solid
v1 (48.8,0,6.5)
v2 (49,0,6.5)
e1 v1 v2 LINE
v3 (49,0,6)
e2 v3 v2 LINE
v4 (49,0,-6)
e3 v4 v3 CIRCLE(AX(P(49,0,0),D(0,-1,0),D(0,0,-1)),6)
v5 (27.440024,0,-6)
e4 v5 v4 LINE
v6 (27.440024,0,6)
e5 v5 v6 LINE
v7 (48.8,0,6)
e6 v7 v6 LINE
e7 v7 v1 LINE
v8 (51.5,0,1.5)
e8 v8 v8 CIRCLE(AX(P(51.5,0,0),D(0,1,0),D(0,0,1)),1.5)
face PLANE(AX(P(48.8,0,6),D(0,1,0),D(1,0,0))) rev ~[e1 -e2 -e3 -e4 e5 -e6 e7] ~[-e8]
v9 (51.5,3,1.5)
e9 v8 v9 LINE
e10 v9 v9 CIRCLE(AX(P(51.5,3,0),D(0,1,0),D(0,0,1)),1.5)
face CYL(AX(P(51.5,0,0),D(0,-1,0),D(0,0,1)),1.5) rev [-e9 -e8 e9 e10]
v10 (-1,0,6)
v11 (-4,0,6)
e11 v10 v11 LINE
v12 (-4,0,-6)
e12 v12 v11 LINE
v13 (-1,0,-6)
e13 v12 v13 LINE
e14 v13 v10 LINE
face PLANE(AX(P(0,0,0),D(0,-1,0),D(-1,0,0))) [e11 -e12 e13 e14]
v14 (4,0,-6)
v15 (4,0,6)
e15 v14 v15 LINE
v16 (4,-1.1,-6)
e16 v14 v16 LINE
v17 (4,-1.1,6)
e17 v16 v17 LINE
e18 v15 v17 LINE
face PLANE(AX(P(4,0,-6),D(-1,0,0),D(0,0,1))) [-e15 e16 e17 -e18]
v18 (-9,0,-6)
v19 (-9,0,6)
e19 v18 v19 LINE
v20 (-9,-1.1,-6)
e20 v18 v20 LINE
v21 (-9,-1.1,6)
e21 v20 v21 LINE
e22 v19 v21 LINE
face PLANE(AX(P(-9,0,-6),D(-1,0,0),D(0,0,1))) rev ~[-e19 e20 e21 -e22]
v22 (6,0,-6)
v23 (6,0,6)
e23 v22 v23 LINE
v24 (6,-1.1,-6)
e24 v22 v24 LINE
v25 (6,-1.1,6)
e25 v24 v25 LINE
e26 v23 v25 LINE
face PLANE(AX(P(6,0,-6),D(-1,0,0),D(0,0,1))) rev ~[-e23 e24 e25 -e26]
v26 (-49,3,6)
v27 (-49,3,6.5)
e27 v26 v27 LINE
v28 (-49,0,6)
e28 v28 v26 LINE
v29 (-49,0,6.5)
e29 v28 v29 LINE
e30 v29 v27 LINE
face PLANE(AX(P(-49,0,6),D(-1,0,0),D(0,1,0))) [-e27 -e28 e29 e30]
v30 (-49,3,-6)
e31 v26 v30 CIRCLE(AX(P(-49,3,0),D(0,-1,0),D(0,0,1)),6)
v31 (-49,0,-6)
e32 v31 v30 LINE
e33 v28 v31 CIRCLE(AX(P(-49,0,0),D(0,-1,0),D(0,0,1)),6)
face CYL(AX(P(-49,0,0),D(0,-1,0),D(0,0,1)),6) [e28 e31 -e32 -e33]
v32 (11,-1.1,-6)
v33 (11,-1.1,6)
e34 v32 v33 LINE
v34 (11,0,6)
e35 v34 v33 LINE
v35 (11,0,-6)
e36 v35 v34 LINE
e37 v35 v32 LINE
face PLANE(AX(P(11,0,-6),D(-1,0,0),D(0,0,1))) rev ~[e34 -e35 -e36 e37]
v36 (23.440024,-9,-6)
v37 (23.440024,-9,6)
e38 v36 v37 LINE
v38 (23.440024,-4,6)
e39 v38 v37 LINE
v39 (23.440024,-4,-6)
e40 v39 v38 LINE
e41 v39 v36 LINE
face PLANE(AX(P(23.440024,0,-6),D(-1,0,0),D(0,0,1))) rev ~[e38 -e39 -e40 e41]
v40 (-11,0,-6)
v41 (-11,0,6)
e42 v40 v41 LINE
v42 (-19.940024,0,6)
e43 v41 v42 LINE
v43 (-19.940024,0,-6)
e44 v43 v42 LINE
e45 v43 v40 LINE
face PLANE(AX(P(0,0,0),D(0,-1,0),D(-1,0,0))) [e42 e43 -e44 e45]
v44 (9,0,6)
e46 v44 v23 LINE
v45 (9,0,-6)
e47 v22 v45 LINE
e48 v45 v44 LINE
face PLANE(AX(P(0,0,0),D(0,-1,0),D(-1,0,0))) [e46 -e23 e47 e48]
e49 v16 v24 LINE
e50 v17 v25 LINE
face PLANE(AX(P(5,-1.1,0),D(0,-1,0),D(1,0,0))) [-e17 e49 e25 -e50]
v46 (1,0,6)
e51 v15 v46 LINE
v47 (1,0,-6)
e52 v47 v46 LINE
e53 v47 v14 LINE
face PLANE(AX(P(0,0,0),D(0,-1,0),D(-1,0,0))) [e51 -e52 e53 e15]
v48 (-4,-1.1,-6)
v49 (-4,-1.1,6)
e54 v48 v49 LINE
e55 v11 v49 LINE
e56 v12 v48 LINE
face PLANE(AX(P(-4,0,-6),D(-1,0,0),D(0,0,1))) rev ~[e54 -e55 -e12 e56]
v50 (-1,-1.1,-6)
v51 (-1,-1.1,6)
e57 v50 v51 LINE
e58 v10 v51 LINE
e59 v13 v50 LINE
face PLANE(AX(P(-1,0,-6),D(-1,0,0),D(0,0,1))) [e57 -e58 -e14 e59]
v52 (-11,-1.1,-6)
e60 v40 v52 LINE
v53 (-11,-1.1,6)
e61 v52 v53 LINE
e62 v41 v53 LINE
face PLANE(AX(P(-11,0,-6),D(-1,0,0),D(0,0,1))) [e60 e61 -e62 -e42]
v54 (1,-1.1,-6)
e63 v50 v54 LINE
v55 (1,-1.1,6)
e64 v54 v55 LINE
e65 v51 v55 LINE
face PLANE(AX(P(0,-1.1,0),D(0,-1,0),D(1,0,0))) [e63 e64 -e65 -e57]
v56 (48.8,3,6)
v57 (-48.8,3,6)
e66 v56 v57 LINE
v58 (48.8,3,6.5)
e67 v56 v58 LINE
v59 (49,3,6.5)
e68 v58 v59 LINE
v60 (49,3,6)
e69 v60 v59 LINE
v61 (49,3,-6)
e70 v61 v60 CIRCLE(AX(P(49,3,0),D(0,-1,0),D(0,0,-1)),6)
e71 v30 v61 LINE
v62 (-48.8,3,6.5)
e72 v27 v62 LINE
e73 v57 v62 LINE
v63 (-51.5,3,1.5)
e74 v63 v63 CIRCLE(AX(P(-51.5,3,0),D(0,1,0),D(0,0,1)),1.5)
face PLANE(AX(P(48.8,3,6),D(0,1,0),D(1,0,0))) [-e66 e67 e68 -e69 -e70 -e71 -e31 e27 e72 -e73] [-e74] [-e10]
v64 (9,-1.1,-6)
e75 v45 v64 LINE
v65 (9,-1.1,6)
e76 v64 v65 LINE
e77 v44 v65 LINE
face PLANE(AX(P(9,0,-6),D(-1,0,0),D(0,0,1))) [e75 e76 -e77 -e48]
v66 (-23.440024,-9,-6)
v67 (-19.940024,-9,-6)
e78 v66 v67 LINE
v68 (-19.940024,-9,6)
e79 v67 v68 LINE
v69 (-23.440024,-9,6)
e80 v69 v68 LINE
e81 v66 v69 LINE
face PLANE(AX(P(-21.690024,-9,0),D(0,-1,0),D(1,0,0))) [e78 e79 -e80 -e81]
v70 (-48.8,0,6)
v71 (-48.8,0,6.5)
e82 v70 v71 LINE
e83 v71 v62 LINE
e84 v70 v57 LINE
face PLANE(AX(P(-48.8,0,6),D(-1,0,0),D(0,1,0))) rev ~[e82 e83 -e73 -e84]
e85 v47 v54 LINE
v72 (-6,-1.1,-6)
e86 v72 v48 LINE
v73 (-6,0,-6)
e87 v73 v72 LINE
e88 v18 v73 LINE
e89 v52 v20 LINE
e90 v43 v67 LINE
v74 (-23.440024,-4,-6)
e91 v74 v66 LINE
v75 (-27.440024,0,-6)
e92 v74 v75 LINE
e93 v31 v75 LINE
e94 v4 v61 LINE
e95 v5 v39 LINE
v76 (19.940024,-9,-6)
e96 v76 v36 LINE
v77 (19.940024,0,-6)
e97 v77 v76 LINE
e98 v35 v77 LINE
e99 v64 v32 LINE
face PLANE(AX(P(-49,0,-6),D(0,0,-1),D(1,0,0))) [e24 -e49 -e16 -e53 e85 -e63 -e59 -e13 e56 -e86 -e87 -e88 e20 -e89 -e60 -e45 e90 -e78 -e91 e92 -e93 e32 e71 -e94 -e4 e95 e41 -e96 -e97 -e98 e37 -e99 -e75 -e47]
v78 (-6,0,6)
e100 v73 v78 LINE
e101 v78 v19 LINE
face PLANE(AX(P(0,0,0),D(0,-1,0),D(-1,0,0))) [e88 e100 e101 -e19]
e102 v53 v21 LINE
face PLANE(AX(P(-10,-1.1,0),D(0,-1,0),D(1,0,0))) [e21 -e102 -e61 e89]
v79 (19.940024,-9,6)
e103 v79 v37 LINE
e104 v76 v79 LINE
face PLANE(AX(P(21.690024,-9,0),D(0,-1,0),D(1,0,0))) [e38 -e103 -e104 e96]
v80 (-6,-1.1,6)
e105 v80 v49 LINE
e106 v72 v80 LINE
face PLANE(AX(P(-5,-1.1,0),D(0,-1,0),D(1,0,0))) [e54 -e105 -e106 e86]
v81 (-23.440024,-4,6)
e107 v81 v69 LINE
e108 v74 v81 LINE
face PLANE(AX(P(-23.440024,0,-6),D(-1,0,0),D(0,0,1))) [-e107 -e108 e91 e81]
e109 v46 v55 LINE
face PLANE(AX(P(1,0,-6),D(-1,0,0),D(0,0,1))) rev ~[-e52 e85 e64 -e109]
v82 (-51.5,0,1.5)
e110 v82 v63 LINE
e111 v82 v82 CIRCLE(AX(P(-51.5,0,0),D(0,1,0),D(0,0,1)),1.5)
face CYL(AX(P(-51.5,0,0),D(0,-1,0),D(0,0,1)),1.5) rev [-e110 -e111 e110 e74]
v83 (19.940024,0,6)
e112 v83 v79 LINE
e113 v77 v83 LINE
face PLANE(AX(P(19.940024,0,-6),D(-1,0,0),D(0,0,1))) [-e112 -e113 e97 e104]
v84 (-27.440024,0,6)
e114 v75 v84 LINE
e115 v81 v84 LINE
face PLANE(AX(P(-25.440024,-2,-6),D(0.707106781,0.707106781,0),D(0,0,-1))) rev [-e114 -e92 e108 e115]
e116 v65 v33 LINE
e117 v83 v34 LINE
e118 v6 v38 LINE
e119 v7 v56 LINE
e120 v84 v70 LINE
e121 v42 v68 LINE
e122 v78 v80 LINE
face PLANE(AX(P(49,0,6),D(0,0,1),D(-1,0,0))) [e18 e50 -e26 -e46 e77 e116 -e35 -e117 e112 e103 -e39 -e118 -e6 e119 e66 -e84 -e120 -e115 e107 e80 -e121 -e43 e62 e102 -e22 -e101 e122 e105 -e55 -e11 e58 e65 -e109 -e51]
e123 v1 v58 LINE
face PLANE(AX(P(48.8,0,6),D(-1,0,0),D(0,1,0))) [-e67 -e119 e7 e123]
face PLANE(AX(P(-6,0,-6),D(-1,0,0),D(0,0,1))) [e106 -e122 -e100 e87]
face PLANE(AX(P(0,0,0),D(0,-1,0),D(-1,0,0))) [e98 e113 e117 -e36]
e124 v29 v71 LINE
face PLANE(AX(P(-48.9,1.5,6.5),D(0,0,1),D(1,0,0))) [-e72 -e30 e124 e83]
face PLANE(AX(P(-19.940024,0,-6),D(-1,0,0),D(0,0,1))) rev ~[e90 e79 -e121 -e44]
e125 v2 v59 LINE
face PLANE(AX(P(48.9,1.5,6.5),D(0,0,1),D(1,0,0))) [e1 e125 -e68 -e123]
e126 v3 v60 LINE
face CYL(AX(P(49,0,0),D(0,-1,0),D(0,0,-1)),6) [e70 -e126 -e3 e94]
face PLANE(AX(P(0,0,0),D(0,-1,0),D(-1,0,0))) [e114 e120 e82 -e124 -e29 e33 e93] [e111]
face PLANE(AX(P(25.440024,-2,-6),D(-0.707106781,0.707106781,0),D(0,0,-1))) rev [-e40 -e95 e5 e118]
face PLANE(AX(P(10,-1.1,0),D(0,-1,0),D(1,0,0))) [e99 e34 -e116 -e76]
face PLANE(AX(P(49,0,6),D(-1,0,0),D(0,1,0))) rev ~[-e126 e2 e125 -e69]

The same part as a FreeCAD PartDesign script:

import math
import FreeCAD as App
import Part
import Sketcher
from FreeCAD import Vector
Q = App.Units.Quantity


def edges_at(feature, points):
    """Names of the edges that pass closest to the given points."""
    edges = feature.Shape.Edges
    near = lambda p: min(range(len(edges)), key=lambda i: edges[i].distToShape(Part.Vertex(*p))[0])
    return sorted({f"Edge{near(p) + 1}" for p in points})


def add_polygon(sketch, points):
    """Adds a closed chain of lines whose ends are joined by coincident constraints."""
    first, n = sketch.GeometryCount, len(points)
    for a, b in zip(points, points[1:] + points[:1]):
        sketch.addGeometry(Part.LineSegment(App.Vector(*a, 0), App.Vector(*b, 0)), False)
    for i in range(n):
        sketch.addConstraint(Sketcher.Constraint("Coincident", first + i, 2, first + (i + 1) % n, 1))

doc = App.newDocument("Part")
body = doc.addObject("PartDesign::Body", "Body")

sketch1 = doc.addObject("Sketcher::SketchObject", "Sketch")
body.addObject(sketch1)
sketch1.AttachmentSupport = (doc.XZ_Plane, [""])
sketch1.MapMode = "FlatFace"
sketch1.addGeometry(Part.LineSegment(Vector(49, -6, 0), Vector(-49, -6, 0)), False)
sketch1.addGeometry(Part.ArcOfCircle(Part.Circle(Vector(-49, 0, 0), Vector(0, 0, 1), 6), math.radians(90), math.radians(270)), False)
sketch1.addGeometry(Part.LineSegment(Vector(-49, 6, 0), Vector(49, 6, 0)), False)
sketch1.addGeometry(Part.ArcOfCircle(Part.Circle(Vector(49, 0, 0), Vector(0, 0, 1), 6), math.radians(-90), math.radians(90)), False)
sketch1.addGeometry(Part.Circle(Vector(51.5, 0, 0), Vector(0, 0, 1), 1.5), False)
sketch1.addGeometry(Part.Circle(Vector(-51.5, 0, 0), Vector(0, 0, 1), 1.5), False)
sketch1.addConstraint(Sketcher.Constraint("Tangent", 0, 2, 1, 2))
sketch1.addConstraint(Sketcher.Constraint("Tangent", 1, 1, 2, 1))
sketch1.addConstraint(Sketcher.Constraint("Tangent", 2, 2, 3, 2))
sketch1.addConstraint(Sketcher.Constraint("Tangent", 3, 1, 0, 1))
sketch1.addConstraint(Sketcher.Constraint("Horizontal", 0))
sketch1.addConstraint(Sketcher.Constraint("Horizontal", 2))
sketch1.addConstraint(Sketcher.Constraint("Equal", 4, 5))
sketch1.addConstraint(Sketcher.Constraint("Symmetric", 1, 3, 3, 3, -1, 1))
sketch1.addConstraint(Sketcher.Constraint("Symmetric", 4, 3, 5, 3, -1, 1))
sketch1.addConstraint(Sketcher.Constraint("PointOnObject", 4, 3, -1))
sketch1.addConstraint(Sketcher.Constraint("Diameter", 4, Q("3 mm")))
sketch1.addConstraint(Sketcher.Constraint("Radius", 1, Q("6 mm")))
sketch1.addConstraint(Sketcher.Constraint("DistanceX", 0, 2, 0, 1, Q("98 mm")))
sketch1.addConstraint(Sketcher.Constraint("DistanceX", 5, 3, 4, 3, Q("103 mm")))
pad1 = doc.addObject("PartDesign::Pad", "Pad")
body.addObject(pad1)
pad1.Profile = sketch1
pad1.Length = 3
pad1.Reversed = True

sketch2 = doc.addObject("Sketcher::SketchObject", "Sketch001")
body.addObject(sketch2)
sketch2.AttachmentSupport = (doc.XZ_Plane, [""])
sketch2.MapMode = "FlatFace"
add_polygon(sketch2, [(-23.4, 6), (-23.4, -6), (-19.9, -6), (-19.9, 6)])
add_polygon(sketch2, [(19.9, 6), (19.9, -6), (23.4, -6), (23.4, 6)])
sketch2.addConstraint(Sketcher.Constraint("Vertical", 0))
sketch2.addConstraint(Sketcher.Constraint("Horizontal", 1))
sketch2.addConstraint(Sketcher.Constraint("Vertical", 2))
sketch2.addConstraint(Sketcher.Constraint("Horizontal", 3))
sketch2.addConstraint(Sketcher.Constraint("Vertical", 4))
sketch2.addConstraint(Sketcher.Constraint("Horizontal", 5))
sketch2.addConstraint(Sketcher.Constraint("Vertical", 6))
sketch2.addConstraint(Sketcher.Constraint("Horizontal", 7))
sketch2.addConstraint(Sketcher.Constraint("Symmetric", 2, 2, 4, 2, -1, 1))
sketch2.addConstraint(Sketcher.Constraint("Symmetric", 0, 2, 6, 2, -1, 1))
sketch2.addConstraint(Sketcher.Constraint("Horizontal", 1, 2, 4, 2))
sketch2.addConstraint(Sketcher.Constraint("DistanceY", 0, 2, 0, 1, Q("12 mm")))
sketch2.addConstraint(Sketcher.Constraint("DistanceX", 1, 1, 1, 2, Q("3.5 mm")))
sketch2.addConstraint(Sketcher.Constraint("DistanceX", 0, 2, -1, 1, Q("23.440024 mm")))
pad2 = doc.addObject("PartDesign::Pad", "Pad001")
body.addObject(pad2)
pad2.Profile = sketch2
pad2.Length = 9

sketch3 = doc.addObject("Sketcher::SketchObject", "Sketch002")
body.addObject(sketch3)
sketch3.AttachmentSupport = (doc.XZ_Plane, [""])
sketch3.MapMode = "FlatFace"
add_polygon(sketch3, [(4, 6), (4, -6), (6, -6), (6, 6)])
add_polygon(sketch3, [(-1, 6), (-1, -6), (1, -6), (1, 6)])
add_polygon(sketch3, [(9, 6), (9, -6), (11, -6), (11, 6)])
add_polygon(sketch3, [(-6, 6), (-6, -6), (-4, -6), (-4, 6)])
add_polygon(sketch3, [(-11, 6), (-11, -6), (-9, -6), (-9, 6)])
sketch3.addConstraint(Sketcher.Constraint("Vertical", 0))
sketch3.addConstraint(Sketcher.Constraint("Horizontal", 1))
sketch3.addConstraint(Sketcher.Constraint("Vertical", 2))
sketch3.addConstraint(Sketcher.Constraint("Horizontal", 3))
sketch3.addConstraint(Sketcher.Constraint("Vertical", 4))
sketch3.addConstraint(Sketcher.Constraint("Horizontal", 5))
sketch3.addConstraint(Sketcher.Constraint("Vertical", 6))
sketch3.addConstraint(Sketcher.Constraint("Horizontal", 7))
sketch3.addConstraint(Sketcher.Constraint("Vertical", 8))
sketch3.addConstraint(Sketcher.Constraint("Horizontal", 9))
sketch3.addConstraint(Sketcher.Constraint("Vertical", 10))
sketch3.addConstraint(Sketcher.Constraint("Horizontal", 11))
sketch3.addConstraint(Sketcher.Constraint("Vertical", 12))
sketch3.addConstraint(Sketcher.Constraint("Horizontal", 13))
sketch3.addConstraint(Sketcher.Constraint("Vertical", 14))
sketch3.addConstraint(Sketcher.Constraint("Horizontal", 15))
sketch3.addConstraint(Sketcher.Constraint("Vertical", 16))
sketch3.addConstraint(Sketcher.Constraint("Horizontal", 17))
sketch3.addConstraint(Sketcher.Constraint("Vertical", 18))
sketch3.addConstraint(Sketcher.Constraint("Horizontal", 19))
sketch3.addConstraint(Sketcher.Constraint("Symmetric", 4, 2, 6, 2, -1, 1))
sketch3.addConstraint(Sketcher.Constraint("Symmetric", 2, 2, 12, 2, -1, 1))
sketch3.addConstraint(Sketcher.Constraint("Symmetric", 0, 2, 14, 2, -1, 1))
sketch3.addConstraint(Sketcher.Constraint("Symmetric", 10, 2, 16, 2, -1, 1))
sketch3.addConstraint(Sketcher.Constraint("Symmetric", 8, 2, 18, 2, -1, 1))
sketch3.addConstraint(Sketcher.Constraint("Horizontal", 1, 2, 4, 2))
sketch3.addConstraint(Sketcher.Constraint("Horizontal", 3, 2, 6, 2))
sketch3.addConstraint(Sketcher.Constraint("Horizontal", 5, 2, 8, 2))
sketch3.addConstraint(Sketcher.Constraint("Horizontal", 7, 2, 10, 2))
sketch3.addConstraint(Sketcher.Constraint("Equal", 3, 5))
sketch3.addConstraint(Sketcher.Constraint("Equal", 7, 9))
sketch3.addConstraint(Sketcher.Constraint("DistanceX", 1, 1, 1, 2, Q("2 mm")))
sketch3.addConstraint(Sketcher.Constraint("DistanceY", 0, 2, 0, 1, Q("12 mm")))
sketch3.addConstraint(Sketcher.Constraint("DistanceX", -1, 1, 0, 2, Q("4 mm")))
sketch3.addConstraint(Sketcher.Constraint("DistanceX", -1, 1, 8, 2, Q("9 mm")))
pad3 = doc.addObject("PartDesign::Pad", "Pad002")
body.addObject(pad3)
pad3.Profile = sketch3
pad3.Length = 1.1

sketch4 = doc.addObject("Sketcher::SketchObject", "Sketch003")
body.addObject(sketch4)
sketch4.AttachmentSupport = (doc.XY_Plane, [""])
sketch4.MapMode = "FlatFace"
sketch4.AttachmentOffset = App.Placement(Vector(0, 0, 6), App.Rotation())
add_polygon(sketch4, [(48.8, 3), (48.8, 0), (49, 0), (49, 3)])
add_polygon(sketch4, [(-49, 3), (-49, 0), (-48.8, 0), (-48.8, 3)])
sketch4.addConstraint(Sketcher.Constraint("Vertical", 0))
sketch4.addConstraint(Sketcher.Constraint("Horizontal", 1))
sketch4.addConstraint(Sketcher.Constraint("Vertical", 2))
sketch4.addConstraint(Sketcher.Constraint("Horizontal", 3))
sketch4.addConstraint(Sketcher.Constraint("Vertical", 4))
sketch4.addConstraint(Sketcher.Constraint("Horizontal", 5))
sketch4.addConstraint(Sketcher.Constraint("Vertical", 6))
sketch4.addConstraint(Sketcher.Constraint("Horizontal", 7))
sketch4.addConstraint(Sketcher.Constraint("Symmetric", 1, 2, 4, 2, -1, 1))
sketch4.addConstraint(Sketcher.Constraint("Symmetric", 0, 2, 5, 2, -2))
sketch4.addConstraint(Sketcher.Constraint("Horizontal", 3, 2, 6, 2))
sketch4.addConstraint(Sketcher.Constraint("DistanceY", 0, 2, 0, 1, Q("3 mm")))
sketch4.addConstraint(Sketcher.Constraint("DistanceX", 1, 1, 1, 2, Q("0.2 mm")))
sketch4.addConstraint(Sketcher.Constraint("DistanceX", -1, 1, 1, 2, Q("49 mm")))
pad4 = doc.addObject("PartDesign::Pad", "Pad003")
body.addObject(pad4)
pad4.Profile = sketch4
pad4.Length = 0.5
doc.recompute()

chamfer = doc.addObject("PartDesign::Chamfer", "Chamfer")
body.addObject(chamfer)
chamfer.Base = (pad4, edges_at(pad4, [(-23.44, 0, 0), (23.44, 0, 0)]))
chamfer.Size = 4

doc.recompute()
